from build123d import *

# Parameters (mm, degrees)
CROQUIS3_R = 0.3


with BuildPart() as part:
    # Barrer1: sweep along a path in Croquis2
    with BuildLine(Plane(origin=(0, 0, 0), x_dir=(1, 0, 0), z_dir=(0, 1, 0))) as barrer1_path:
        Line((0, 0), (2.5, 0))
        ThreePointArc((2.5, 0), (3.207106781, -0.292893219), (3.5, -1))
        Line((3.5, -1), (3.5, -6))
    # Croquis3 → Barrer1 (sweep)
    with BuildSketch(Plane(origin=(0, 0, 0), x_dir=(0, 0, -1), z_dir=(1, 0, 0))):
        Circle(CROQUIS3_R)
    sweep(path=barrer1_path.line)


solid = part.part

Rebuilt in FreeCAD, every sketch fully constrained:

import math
import FreeCAD as App
import Part
import Sketcher

doc = App.newDocument("Part")
body = doc.addObject("PartDesign::Body", "Body")

# Sketch on YZ plane
sketch1 = body.newObject("Sketcher::SketchObject", "Sketch")
sketch1.AttachmentSupport = (doc.getObject("YZ_Plane"), [""])
sketch1.MapMode = "FlatFace"
sketch1.addGeometry(Part.Circle(App.Vector(0, 0, 0), App.Vector(0, 0, 1), 0.3), False)
sketch1.addConstraint([
    Sketcher.Constraint("Coincident", 0, 3, -1, 1),
    Sketcher.Constraint("Diameter", 0, 0.6),
])

# Sketch on XZ plane
sketch2 = body.newObject("Sketcher::SketchObject", "Sketch001")
sketch2.AttachmentSupport = (doc.getObject("XZ_Plane"), [""])
sketch2.MapMode = "FlatFace"
sketch2.addGeometry([
    Part.LineSegment(App.Vector(0, 0, 0), App.Vector(2.5, 0, 0)),
    Part.ArcOfCircle(Part.Circle(App.Vector(2.5, 1, 0), App.Vector(0, 0, 1), 1), math.radians(-90), math.radians(0)),
    Part.LineSegment(App.Vector(3.5, 1, 0), App.Vector(3.5, 6, 0)),
], False)
sketch2.addConstraint([
    Sketcher.Constraint("Tangent", 0, 2, 1, 1),
    Sketcher.Constraint("Tangent", 1, 2, 2, 1),
    Sketcher.Constraint("Horizontal", 0),
    Sketcher.Constraint("Vertical", 2),
    Sketcher.Constraint("Coincident", 0, 1, -1, 1),
    Sketcher.Constraint("Radius", 1, 1.0),
    Sketcher.Constraint("DistanceY", 2, 1, 2, 2, 5.0),
    Sketcher.Constraint("DistanceX", 0, 1, 0, 2, 2.5),
])
doc.recompute()

additivepipe = body.newObject("PartDesign::AdditivePipe", "AdditivePipe")
additivepipe.Profile = sketch1
additivepipe.Spine = (sketch2, ["Edge1", "Edge2", "Edge3"])

doc.recompute()
